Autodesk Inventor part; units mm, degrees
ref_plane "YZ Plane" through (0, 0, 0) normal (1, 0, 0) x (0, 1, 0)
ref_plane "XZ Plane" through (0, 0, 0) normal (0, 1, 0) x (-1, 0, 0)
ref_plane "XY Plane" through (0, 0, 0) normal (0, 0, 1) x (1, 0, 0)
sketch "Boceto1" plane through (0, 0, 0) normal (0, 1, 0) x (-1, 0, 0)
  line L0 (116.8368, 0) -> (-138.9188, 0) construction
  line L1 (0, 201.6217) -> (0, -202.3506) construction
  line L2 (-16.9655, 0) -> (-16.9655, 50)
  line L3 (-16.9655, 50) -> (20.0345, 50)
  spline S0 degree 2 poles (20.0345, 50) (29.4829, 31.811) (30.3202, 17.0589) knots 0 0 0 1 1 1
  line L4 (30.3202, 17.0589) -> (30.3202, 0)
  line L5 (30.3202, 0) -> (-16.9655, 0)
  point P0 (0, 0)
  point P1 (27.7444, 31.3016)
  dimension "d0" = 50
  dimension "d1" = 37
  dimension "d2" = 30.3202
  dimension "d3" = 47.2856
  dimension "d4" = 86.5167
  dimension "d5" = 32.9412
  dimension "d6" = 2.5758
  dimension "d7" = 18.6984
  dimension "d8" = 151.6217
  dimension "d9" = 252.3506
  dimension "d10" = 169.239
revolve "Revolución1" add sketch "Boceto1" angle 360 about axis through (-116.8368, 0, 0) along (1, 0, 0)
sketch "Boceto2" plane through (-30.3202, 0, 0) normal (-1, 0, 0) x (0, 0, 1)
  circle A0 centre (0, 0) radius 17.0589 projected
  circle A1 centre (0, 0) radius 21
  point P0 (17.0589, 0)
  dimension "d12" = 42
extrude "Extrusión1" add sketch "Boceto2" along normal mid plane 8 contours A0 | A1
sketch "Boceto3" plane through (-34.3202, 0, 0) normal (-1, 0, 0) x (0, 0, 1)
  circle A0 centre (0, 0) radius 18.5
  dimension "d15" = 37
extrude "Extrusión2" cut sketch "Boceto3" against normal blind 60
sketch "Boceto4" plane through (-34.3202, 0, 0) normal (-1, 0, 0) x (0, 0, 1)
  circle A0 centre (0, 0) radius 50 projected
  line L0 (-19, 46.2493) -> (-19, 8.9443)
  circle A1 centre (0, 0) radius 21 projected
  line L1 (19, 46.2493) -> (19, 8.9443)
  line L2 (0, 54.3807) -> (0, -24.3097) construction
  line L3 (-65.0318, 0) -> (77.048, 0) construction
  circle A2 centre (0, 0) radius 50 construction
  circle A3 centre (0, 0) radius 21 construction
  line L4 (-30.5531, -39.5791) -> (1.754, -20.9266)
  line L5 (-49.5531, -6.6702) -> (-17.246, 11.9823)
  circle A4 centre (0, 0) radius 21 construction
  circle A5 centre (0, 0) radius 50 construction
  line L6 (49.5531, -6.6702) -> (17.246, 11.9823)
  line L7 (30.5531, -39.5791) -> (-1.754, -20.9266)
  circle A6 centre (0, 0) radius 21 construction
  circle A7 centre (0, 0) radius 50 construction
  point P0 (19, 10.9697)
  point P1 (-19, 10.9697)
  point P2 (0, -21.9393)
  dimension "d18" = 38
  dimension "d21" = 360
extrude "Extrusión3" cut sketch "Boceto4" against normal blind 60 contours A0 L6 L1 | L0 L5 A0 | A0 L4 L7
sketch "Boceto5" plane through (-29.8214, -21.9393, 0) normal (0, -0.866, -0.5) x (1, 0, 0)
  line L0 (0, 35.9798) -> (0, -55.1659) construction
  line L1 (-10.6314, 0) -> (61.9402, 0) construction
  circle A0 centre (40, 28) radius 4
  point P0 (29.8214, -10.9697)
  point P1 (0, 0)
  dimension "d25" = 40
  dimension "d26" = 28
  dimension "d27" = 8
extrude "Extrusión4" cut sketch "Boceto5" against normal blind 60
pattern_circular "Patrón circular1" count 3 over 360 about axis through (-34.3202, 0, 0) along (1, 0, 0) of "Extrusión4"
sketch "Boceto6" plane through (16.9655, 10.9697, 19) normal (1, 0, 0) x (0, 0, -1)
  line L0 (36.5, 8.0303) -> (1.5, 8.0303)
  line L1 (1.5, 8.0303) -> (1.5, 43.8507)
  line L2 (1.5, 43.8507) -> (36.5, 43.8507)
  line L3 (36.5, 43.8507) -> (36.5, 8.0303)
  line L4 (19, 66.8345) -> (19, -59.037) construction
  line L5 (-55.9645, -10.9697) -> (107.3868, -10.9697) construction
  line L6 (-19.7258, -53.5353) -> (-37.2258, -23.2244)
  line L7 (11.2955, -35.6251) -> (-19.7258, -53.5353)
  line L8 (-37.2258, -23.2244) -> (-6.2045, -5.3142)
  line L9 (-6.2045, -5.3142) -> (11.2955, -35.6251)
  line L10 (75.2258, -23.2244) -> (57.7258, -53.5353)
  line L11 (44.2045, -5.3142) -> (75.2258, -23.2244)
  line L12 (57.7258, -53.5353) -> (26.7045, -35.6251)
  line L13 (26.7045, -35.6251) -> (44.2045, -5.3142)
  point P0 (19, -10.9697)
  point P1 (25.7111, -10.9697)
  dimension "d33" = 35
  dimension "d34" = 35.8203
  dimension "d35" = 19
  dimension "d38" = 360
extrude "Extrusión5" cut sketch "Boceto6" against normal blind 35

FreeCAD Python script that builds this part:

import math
import FreeCAD as App
import Part
import Sketcher
from FreeCAD import Vector
Q = App.Units.Quantity

doc = App.newDocument("Part")
body = doc.addObject("PartDesign::Body", "Body")

sketch1 = body.newObject("Sketcher::SketchObject", "Sketch")
sketch1.AttachmentSupport = (doc.getObject("XZ_Plane"), [""])
sketch1.MapMode = "FlatFace"
sketch1.addGeometry(Part.LineSegment(Vector(16.9655, 50, 0), Vector(16.9655, 0, 0)), False)
sketch1.addGeometry(Part.LineSegment(Vector(16.9655, 0, 0), Vector(-30.3202, 0, 0)), False)
sketch1.addGeometry(Part.LineSegment(Vector(-30.3202, 0, 0), Vector(-30.3202, 17.0589, 0)), False)
sketch1.addGeometry(Part.BSplineCurve([Vector(-20.0345, 50, 0), Vector(-29.4829, 31.811, 0), Vector(-30.3202, 17.0589, 0)], [3, 3], [0, 1], False, 2, [1, 1, 1], False), False)
sketch1.addGeometry(Part.LineSegment(Vector(-20.0345, 50, 0), Vector(16.9655, 50, 0)), False)
sketch1.addConstraint(Sketcher.Constraint("Block", 3))
sketch1.addConstraint(Sketcher.Constraint("Coincident", 0, 2, 1, 1))
sketch1.addConstraint(Sketcher.Constraint("Coincident", 1, 2, 2, 1))
sketch1.addConstraint(Sketcher.Constraint("Coincident", 2, 2, 3, 2))
sketch1.addConstraint(Sketcher.Constraint("Coincident", 3, 1, 4, 1))
sketch1.addConstraint(Sketcher.Constraint("Coincident", 4, 2, 0, 1))
sketch1.addConstraint(Sketcher.Constraint("Vertical", 0))
sketch1.addConstraint(Sketcher.Constraint("Horizontal", 1))
sketch1.addConstraint(Sketcher.Constraint("Vertical", 2))
sketch1.addConstraint(Sketcher.Constraint("Horizontal", 4))
sketch1.addConstraint(Sketcher.Constraint("PointOnObject", 0, 2, -1))
sketch1.addConstraint(Sketcher.Constraint("DistanceX", 4, 1, 4, 2, 37.0))
revolution = body.newObject("PartDesign::Revolution", "Revolution")
revolution.Profile = sketch1
revolution.ReferenceAxis = (sketch1, ["H_Axis"])
revolution.Angle = 360

sketch2 = body.newObject("Sketcher::SketchObject", "Sketch001")
sketch2.AttachmentSupport = (doc.getObject("YZ_Plane"), [""])
sketch2.MapMode = "FlatFace"
sketch2.AttachmentOffset = App.Placement(Vector(0, 0, -30.3202), App.Rotation())
sketch2.addGeometry(Part.Circle(Vector(0, 0, 0), Vector(0, 0, 1), 21), False)
sketch2.addConstraint(Sketcher.Constraint("Coincident", 0, 3, -1, 1))
sketch2.addConstraint(Sketcher.Constraint("Diameter", 0, 42.0))
pad1 = body.newObject("PartDesign::Pad", "Pad")
pad1.Profile = sketch2
pad1.Length = 8
pad1.Midplane = True

sketch3 = body.newObject("Sketcher::SketchObject", "Sketch002")
sketch3.AttachmentSupport = (doc.getObject("YZ_Plane"), [""])
sketch3.MapMode = "FlatFace"
sketch3.AttachmentOffset = App.Placement(Vector(0, 0, -34.3202), App.Rotation())
sketch3.addGeometry(Part.Circle(Vector(0, 0, 0), Vector(0, 0, 1), 18), False)
sketch3.addConstraint(Sketcher.Constraint("Coincident", 0, 3, -1, 1))
sketch3.addConstraint(Sketcher.Constraint("Diameter", 0, 37.0))
pocket1 = body.newObject("PartDesign::Pocket", "Pocket")
pocket1.Profile = sketch3
pocket1.Length = 60
pocket1.Reversed = True

sketch4 = body.newObject("Sketcher::SketchObject", "Sketch003")
sketch4.AttachmentSupport = (doc.getObject("YZ_Plane"), [""])
sketch4.MapMode = "FlatFace"
sketch4.AttachmentOffset = App.Placement(Vector(0, 0, -34.3202), App.Rotation())
sketch4.addGeometry(Part.ArcOfCircle(Part.Circle(Vector(0, 0, 0), Vector(0, 0, 1), 50), math.radians(22), math.radians(98)), False)
sketch4.addGeometry(Part.LineSegment(Vector(46, 19, 0), Vector(11, 19, 0)), False)
sketch4.addGeometry(Part.LineSegment(Vector(11, 19, 0), Vector(-7, 50, 0)), False)
sketch4.addGeometry(Part.LineSegment(Vector(11, -19, 0), Vector(46, -19, 0)), False)
sketch4.addGeometry(Part.ArcOfCircle(Part.Circle(Vector(0, 0, 0), Vector(0, 0, 1), 50), math.radians(-98), math.radians(-22)), False)
sketch4.addGeometry(Part.LineSegment(Vector(-7, -50, 0), Vector(11, -19, 0)), False)
sketch4.addGeometry(Part.ArcOfCircle(Part.Circle(Vector(0, 0, 0), Vector(0, 0, 1), 50), math.radians(142), math.radians(218)), False)
sketch4.addGeometry(Part.LineSegment(Vector(-40, 31, 0), Vector(-22, 0, 0)), False)
sketch4.addGeometry(Part.LineSegment(Vector(-22, 0, 0), Vector(-40, -31, 0)), False)
sketch4.addConstraint(Sketcher.Constraint("Coincident", 0, 1, 1, 1))
sketch4.addConstraint(Sketcher.Constraint("Coincident", 1, 2, 2, 1))
sketch4.addConstraint(Sketcher.Constraint("Coincident", 2, 2, 0, 2))
sketch4.addConstraint(Sketcher.Constraint("Coincident", 3, 2, 4, 2))
sketch4.addConstraint(Sketcher.Constraint("Coincident", 4, 1, 5, 1))
sketch4.addConstraint(Sketcher.Constraint("Coincident", 5, 2, 3, 1))
sketch4.addConstraint(Sketcher.Constraint("Coincident", 6, 1, 7, 1))
sketch4.addConstraint(Sketcher.Constraint("Coincident", 7, 2, 8, 1))
sketch4.addConstraint(Sketcher.Constraint("Coincident", 8, 2, 6, 2))
sketch4.addConstraint(Sketcher.Constraint("Horizontal", 1))
sketch4.addConstraint(Sketcher.Constraint("Horizontal", 3))
sketch4.addConstraint(Sketcher.Constraint("Coincident", 0, 3, -1, 1))
sketch4.addConstraint(Sketcher.Constraint("Coincident", 4, 3, -1, 1))
sketch4.addConstraint(Sketcher.Constraint("Coincident", 6, 3, -1, 1))
sketch4.addConstraint(Sketcher.Constraint("Equal", 0, 4))
sketch4.addConstraint(Sketcher.Constraint("Equal", 4, 6))
sketch4.addConstraint(Sketcher.Constraint("Symmetric", 1, 2, 5, 2, -1))
sketch4.addConstraint(Sketcher.Constraint("PointOnObject", 7, 2, -1))
sketch4.addConstraint(Sketcher.Constraint("Parallel", 2, 7))
sketch4.addConstraint(Sketcher.Constraint("Parallel", 5, 8))
sketch4.addConstraint(Sketcher.Constraint("Vertical", 2, 2, 4, 1))
sketch4.addConstraint(Sketcher.Constraint("Equal", 5, 7))
sketch4.addConstraint(Sketcher.Constraint("Radius", 0, 50.0))
sketch4.addConstraint(Sketcher.Constraint("DistanceY", 3, 2, 0, 1, 38.0))
sketch4.addConstraint(Sketcher.Constraint("Angle", 2, Q("120 deg")))
sketch4.addConstraint(Sketcher.Constraint("DistanceX", 1, 2, 1, 1, 35.2797))
pocket2 = body.newObject("PartDesign::Pocket", "Pocket001")
pocket2.Profile = sketch4
pocket2.Length = 60
pocket2.Reversed = True

sketch5 = body.newObject("Sketcher::SketchObject", "Sketch004")
sketch5.Placement = App.Placement(Vector(-29.8214, -21.9393, 0), App.Rotation(Vector(1, 0, 0), Vector(0, -0.5, 0.866025404), Vector(0, -0.866025404, -0.5), "ZXY"))
sketch5.addGeometry(Part.Circle(Vector(40, 28, 0), Vector(0, 0, 1), 4), False)
sketch5.addConstraint(Sketcher.Constraint("Diameter", 0, 8.0))
sketch5.addConstraint(Sketcher.Constraint("DistanceX", -1, 1, 0, 3, 40.0))
sketch5.addConstraint(Sketcher.Constraint("DistanceY", -1, 1, 0, 3, 28.0))
pocket3 = body.newObject("PartDesign::Pocket", "Pocket002")
pocket3.Profile = sketch5
pocket3.Length = 60
doc.recompute()

polarpattern = body.newObject("PartDesign::PolarPattern", "PolarPattern")
polarpattern.Originals = [pocket3]
polarpattern.Axis = (doc.getObject("X_Axis"), [""])
polarpattern.Angle = 360
polarpattern.Occurrences = 3
body.Tip = polarpattern

sketch6 = body.newObject("Sketcher::SketchObject", "Sketch005")
sketch6.AttachmentSupport = (doc.getObject("YZ_Plane"), [""])
sketch6.MapMode = "FlatFace"
sketch6.AttachmentOffset = App.Placement(Vector(0, 0, 16.9655), App.Rotation())
sketch6.addGeometry(Part.LineSegment(Vector(19, 18, 0), Vector(19, -18, 0)), False)
sketch6.addGeometry(Part.LineSegment(Vector(19, -18, 0), Vector(55, -18, 0)), False)
sketch6.addGeometry(Part.LineSegment(Vector(55, -18, 0), Vector(55, 18, 0)), False)
sketch6.addGeometry(Part.LineSegment(Vector(55, 18, 0), Vector(19, 18, 0)), False)
sketch6.addGeometry(Part.LineSegment(Vector(-12, 56, 0), Vector(-43, 39, 0)), False)
sketch6.addGeometry(Part.LineSegment(Vector(-43, 39, 0), Vector(-25, 8, 0)), False)
sketch6.addGeometry(Part.LineSegment(Vector(-25, 8, 0), Vector(6, 25, 0)), False)
sketch6.addGeometry(Part.LineSegment(Vector(6, 25, 0), Vector(-12, 56, 0)), False)
sketch6.addGeometry(Part.LineSegment(Vector(-43, -39, 0), Vector(-12, -56, 0)), False)
sketch6.addGeometry(Part.LineSegment(Vector(-12, -56, 0), Vector(6, -25, 0)), False)
sketch6.addGeometry(Part.LineSegment(Vector(6, -25, 0), Vector(-25, -8, 0)), False)
sketch6.addGeometry(Part.LineSegment(Vector(-25, -8, 0), Vector(-43, -39, 0)), False)
sketch6.addConstraint(Sketcher.Constraint("Coincident", 0, 2, 1, 1))
sketch6.addConstraint(Sketcher.Constraint("Coincident", 1, 2, 2, 1))
sketch6.addConstraint(Sketcher.Constraint("Coincident", 2, 2, 3, 1))
sketch6.addConstraint(Sketcher.Constraint("Coincident", 3, 2, 0, 1))
sketch6.addConstraint(Sketcher.Constraint("Coincident", 4, 2, 5, 1))
sketch6.addConstraint(Sketcher.Constraint("Coincident", 5, 2, 6, 1))
sketch6.addConstraint(Sketcher.Constraint("Coincident", 6, 2, 7, 1))
sketch6.addConstraint(Sketcher.Constraint("Coincident", 7, 2, 4, 1))
sketch6.addConstraint(Sketcher.Constraint("Coincident", 8, 2, 9, 1))
sketch6.addConstraint(Sketcher.Constraint("Coincident", 9, 2, 10, 1))
sketch6.addConstraint(Sketcher.Constraint("Coincident", 10, 2, 11, 1))
sketch6.addConstraint(Sketcher.Constraint("Coincident", 11, 2, 8, 1))
sketch6.addConstraint(Sketcher.Constraint("Vertical", 0))
sketch6.addConstraint(Sketcher.Constraint("Horizontal", 1))
sketch6.addConstraint(Sketcher.Constraint("Vertical", 2))
sketch6.addConstraint(Sketcher.Constraint("Horizontal", 3))
sketch6.addConstraint(Sketcher.Constraint("Symmetric", 7, 2, 8, 2, -1))
sketch6.addConstraint(Sketcher.Constraint("Symmetric", 6, 2, 9, 2, -1))
sketch6.addConstraint(Sketcher.Constraint("Symmetric", 5, 2, 10, 2, -1))
sketch6.addConstraint(Sketcher.Constraint("Symmetric", 4, 2, 11, 2, -1))
sketch6.addConstraint(Sketcher.Constraint("Perpendicular", 4, 5))
sketch6.addConstraint(Sketcher.Constraint("Perpendicular", 5, 6))
sketch6.addConstraint(Sketcher.Constraint("Perpendicular", 6, 7))
sketch6.addConstraint(Sketcher.Constraint("DistanceY", 0, 2, 0, 1, 35.0))
sketch6.addConstraint(Sketcher.Constraint("Distance", 4, 35.0))
sketch6.addConstraint(Sketcher.Constraint("DistanceX", -1, 1, 0, 2, 19.0))
sketch6.addConstraint(Sketcher.Constraint("Angle", 4, Q("-150 deg")))
sketch6.addConstraint(Sketcher.Constraint("DistanceX", 1, 1, 1, 2, 35.8204))
sketch6.addConstraint(Sketcher.Constraint("Distance", 5, 35.8203))
sketch6.addConstraint(Sketcher.Constraint("DistanceY", 0, 2, -1, 1, 17.5))
sketch6.addConstraint(Sketcher.Constraint("DistanceX", 4, 2, 2, 2, 97.386))
sketch6.addConstraint(Sketcher.Constraint("DistanceY", 9, 2, 5, 2, 32.909))
pocket4 = body.newObject("PartDesign::Pocket", "Pocket003")
pocket4.Profile = sketch6
pocket4.Length = 35

doc.recompute()
